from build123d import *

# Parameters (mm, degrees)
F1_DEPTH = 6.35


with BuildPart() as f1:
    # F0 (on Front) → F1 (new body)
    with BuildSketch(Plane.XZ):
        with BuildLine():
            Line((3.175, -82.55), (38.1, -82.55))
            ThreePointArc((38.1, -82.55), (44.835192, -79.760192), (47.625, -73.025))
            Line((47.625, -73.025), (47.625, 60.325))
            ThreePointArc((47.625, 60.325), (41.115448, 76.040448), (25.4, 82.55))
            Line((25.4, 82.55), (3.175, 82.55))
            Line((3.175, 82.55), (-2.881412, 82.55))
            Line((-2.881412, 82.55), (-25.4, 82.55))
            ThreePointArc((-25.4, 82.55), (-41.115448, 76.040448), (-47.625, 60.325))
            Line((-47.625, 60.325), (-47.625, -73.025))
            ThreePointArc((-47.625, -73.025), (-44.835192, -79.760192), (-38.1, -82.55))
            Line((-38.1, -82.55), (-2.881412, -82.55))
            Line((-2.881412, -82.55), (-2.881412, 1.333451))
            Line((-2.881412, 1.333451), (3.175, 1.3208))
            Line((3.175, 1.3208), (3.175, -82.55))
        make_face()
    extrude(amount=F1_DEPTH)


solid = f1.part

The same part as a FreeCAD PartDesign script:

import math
import FreeCAD as App
import Part
import Sketcher

V = App.Vector
Q = App.Units.Quantity

doc = App.newDocument("Part")
body = doc.addObject("PartDesign::Body", "Body")

# Sketch on XZ plane
sketch1 = doc.addObject("Sketcher::SketchObject", "Sketch")
body.addObject(sketch1)
sketch1.AttachmentSupport = (doc.XZ_Plane, [""])
sketch1.MapMode = "FlatFace"
sketch1.addGeometry([
    Part.LineSegment(V(3.175, -82.55, 0), V(38.1, -82.55, 0)),  # 0
    Part.ArcOfCircle(Part.Circle(V(38.1, -73.025, 0), V(0, 0, 1), 9.525), math.radians(-89.999998), math.radians(-0.000002)),  # 1
    Part.LineSegment(V(47.625, -73.025, 0), V(47.625, 60.325, 0)),  # 2
    Part.ArcOfCircle(Part.Circle(V(25.399999, 60.324999, 0), V(0, 0, 1), 22.225001), math.radians(0.000002), math.radians(89.999998)),  # 3
    Part.LineSegment(V(25.4, 82.55, 0), V(-25.4, 82.55, 0)),  # 4
    Part.ArcOfCircle(Part.Circle(V(-25.399999, 60.324999, 0), V(0, 0, 1), 22.225001), math.radians(90.000002), math.radians(179.999998)),  # 5
    Part.LineSegment(V(-47.625, 60.325, 0), V(-47.625, -73.025, 0)),  # 6
    Part.ArcOfCircle(Part.Circle(V(-38.1, -73.025, 0), V(0, 0, 1), 9.525), math.radians(-179.999998), math.radians(-90.000002)),  # 7
    Part.LineSegment(V(-38.1, -82.55, 0), V(-2.881412, -82.55, 0)),  # 8
    Part.LineSegment(V(-2.881412, -82.55, 0), V(-2.881412, 1.333451, 0)),  # 9
    Part.LineSegment(V(-2.881412, 1.333451, 0), V(3.175, 1.3208, 0)),  # 10
    Part.LineSegment(V(3.175, 1.3208, 0), V(3.175, -82.55, 0)),  # 11
], False)
sketch1.addConstraint([
    Sketcher.Constraint("Tangent", 0, 2, 1, 1),
    Sketcher.Constraint("Tangent", 1, 2, 2, 1),
    Sketcher.Constraint("Tangent", 2, 2, 3, 1),
    Sketcher.Constraint("Tangent", 3, 2, 4, 1),
    Sketcher.Constraint("Tangent", 4, 2, 5, 1),
    Sketcher.Constraint("Tangent", 5, 2, 6, 1),
    Sketcher.Constraint("Tangent", 6, 2, 7, 1),
    Sketcher.Constraint("Tangent", 7, 2, 8, 1),
    Sketcher.Constraint("Coincident", 8, 2, 9, 1),
    Sketcher.Constraint("Coincident", 9, 2, 10, 1),
    Sketcher.Constraint("Coincident", 10, 2, 11, 1),
    Sketcher.Constraint("Coincident", 11, 2, 0, 1),
    Sketcher.Constraint("Horizontal", 0),
    Sketcher.Constraint("Vertical", 2),
    Sketcher.Constraint("Horizontal", 4),
    Sketcher.Constraint("Vertical", 6),
    Sketcher.Constraint("Horizontal", 8),
    Sketcher.Constraint("Vertical", 9),
    Sketcher.Constraint("Vertical", 11),
    Sketcher.Constraint("Equal", 3, 5),
    Sketcher.Constraint("Equal", 1, 7),
    Sketcher.Constraint("Symmetric", 1, 3, 7, 3, -2),
    Sketcher.Constraint("DistanceX", 4, 2, 4, 1, Q("2 in")),
    Sketcher.Constraint("Radius", 1, Q("0.375 in")),
    Sketcher.Constraint("Radius", 3, Q("0.875 in")),
    Sketcher.Constraint("DistanceX", 5, 2, 10, 2, Q("2 in")),
    Sketcher.Constraint("DistanceY", 2, 1, 2, 2, Q("5.25 in")),
    Sketcher.Constraint("DistanceY", 11, 2, 11, 1, Q("3.302 in")),
    Sketcher.Constraint("DistanceY", 0, 2, -1, 1, Q("3.25 in")),
    Sketcher.Constraint("DistanceX", 8, 1, 8, 2, Q("35.218588 mm")),
    Sketcher.Constraint("DistanceY", 9, 1, 9, 2, Q("83.883451 mm")),
])
pad1 = doc.addObject("PartDesign::Pad", "Pad")
body.addObject(pad1)
pad1.Profile = sketch1
pad1.Length = Q("0.25 in")

doc.recompute()
